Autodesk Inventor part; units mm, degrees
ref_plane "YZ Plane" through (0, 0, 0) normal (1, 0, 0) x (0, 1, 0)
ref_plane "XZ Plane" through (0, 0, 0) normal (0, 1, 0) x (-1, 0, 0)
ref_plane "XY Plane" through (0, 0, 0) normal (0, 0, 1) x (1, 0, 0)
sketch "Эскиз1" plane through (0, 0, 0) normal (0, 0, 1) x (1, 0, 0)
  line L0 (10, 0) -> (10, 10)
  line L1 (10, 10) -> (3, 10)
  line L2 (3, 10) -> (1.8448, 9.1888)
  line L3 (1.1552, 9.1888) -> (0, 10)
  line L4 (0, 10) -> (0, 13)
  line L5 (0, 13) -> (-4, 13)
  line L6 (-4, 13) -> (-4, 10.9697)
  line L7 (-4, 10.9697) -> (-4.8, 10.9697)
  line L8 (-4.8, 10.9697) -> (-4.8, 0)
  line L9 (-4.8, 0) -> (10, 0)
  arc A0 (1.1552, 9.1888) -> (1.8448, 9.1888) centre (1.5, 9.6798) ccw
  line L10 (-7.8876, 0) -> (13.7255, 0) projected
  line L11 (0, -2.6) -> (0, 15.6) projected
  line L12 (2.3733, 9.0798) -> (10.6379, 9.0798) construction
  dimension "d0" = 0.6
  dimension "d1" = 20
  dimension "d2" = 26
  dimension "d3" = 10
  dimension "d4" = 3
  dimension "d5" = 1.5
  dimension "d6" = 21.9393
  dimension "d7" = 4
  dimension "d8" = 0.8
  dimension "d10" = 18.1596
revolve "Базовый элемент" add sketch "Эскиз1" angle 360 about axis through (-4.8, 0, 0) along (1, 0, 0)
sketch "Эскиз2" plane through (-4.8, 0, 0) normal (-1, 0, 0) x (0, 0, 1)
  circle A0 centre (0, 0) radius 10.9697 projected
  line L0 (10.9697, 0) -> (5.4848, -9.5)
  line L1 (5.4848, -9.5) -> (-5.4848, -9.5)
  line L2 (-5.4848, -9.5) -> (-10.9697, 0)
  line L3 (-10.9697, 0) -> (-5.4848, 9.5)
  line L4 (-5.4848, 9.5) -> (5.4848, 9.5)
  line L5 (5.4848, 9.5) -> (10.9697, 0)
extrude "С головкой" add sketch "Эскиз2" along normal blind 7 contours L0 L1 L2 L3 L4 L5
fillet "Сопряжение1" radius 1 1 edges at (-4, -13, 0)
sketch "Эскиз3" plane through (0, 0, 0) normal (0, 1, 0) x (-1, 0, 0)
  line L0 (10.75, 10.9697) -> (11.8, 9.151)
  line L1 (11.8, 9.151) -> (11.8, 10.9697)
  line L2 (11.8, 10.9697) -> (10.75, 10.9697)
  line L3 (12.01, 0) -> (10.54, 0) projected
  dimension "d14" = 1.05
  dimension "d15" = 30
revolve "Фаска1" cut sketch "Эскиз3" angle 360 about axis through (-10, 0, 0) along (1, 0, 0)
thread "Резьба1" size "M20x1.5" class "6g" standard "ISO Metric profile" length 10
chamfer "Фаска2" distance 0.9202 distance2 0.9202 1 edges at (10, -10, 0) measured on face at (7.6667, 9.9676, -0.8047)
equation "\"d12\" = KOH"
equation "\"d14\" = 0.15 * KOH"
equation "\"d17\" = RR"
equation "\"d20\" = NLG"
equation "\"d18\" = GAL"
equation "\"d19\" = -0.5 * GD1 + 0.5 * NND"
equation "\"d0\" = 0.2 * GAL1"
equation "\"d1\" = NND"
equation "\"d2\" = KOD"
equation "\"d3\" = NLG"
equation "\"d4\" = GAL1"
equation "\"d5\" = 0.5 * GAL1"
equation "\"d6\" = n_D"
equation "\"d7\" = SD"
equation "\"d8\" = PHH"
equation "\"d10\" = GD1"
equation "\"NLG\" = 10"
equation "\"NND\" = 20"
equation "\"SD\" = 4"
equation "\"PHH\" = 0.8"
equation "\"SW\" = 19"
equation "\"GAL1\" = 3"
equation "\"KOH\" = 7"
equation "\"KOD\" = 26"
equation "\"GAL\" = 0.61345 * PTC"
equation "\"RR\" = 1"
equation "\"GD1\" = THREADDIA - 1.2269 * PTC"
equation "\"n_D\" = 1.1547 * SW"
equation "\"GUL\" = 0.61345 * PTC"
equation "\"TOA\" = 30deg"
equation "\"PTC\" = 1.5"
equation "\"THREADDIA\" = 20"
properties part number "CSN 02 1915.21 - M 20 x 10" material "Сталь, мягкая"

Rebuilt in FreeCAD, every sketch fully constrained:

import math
import FreeCAD as App
import Part
import Sketcher
Q = App.Units.Quantity


def edges_at(feature, points):
    """Names of the edges that pass closest to the given points."""
    edges = feature.Shape.Edges
    near = lambda p: min(range(len(edges)), key=lambda i: edges[i].distToShape(Part.Vertex(*p))[0])
    return sorted({f"Edge{near(p) + 1}" for p in points})

doc = App.newDocument("Part")
body = doc.addObject("PartDesign::Body", "Body")

# Sketch on XY plane
sketch1 = body.newObject("Sketcher::SketchObject", "Sketch")
sketch1.AttachmentSupport = (doc.getObject("XY_Plane"), [""])
sketch1.MapMode = "FlatFace"
sketch1.addGeometry([
    Part.LineSegment(App.Vector(10, 0, 0), App.Vector(10, 10, 0)),  # 0
    Part.LineSegment(App.Vector(10, 10, 0), App.Vector(3, 10, 0)),  # 1
    Part.LineSegment(App.Vector(3, 10, 0), App.Vector(1.8448, 9.1888, 0)),  # 2
    Part.ArcOfCircle(Part.Circle(App.Vector(1.5, 9.6798, 0), App.Vector(0, 0, 1), 0.599973), math.radians(-125.078078), math.radians(-54.921922)),  # 3
    Part.LineSegment(App.Vector(1.1552, 9.1888, 0), App.Vector(0, 10, 0)),  # 4
    Part.LineSegment(App.Vector(0, 10, 0), App.Vector(0, 13, 0)),  # 5
    Part.LineSegment(App.Vector(0, 13, 0), App.Vector(-4, 13, 0)),  # 6
    Part.LineSegment(App.Vector(-4, 13, 0), App.Vector(-4, 10.9697, 0)),  # 7
    Part.LineSegment(App.Vector(-4, 10.9697, 0), App.Vector(-4.8, 10.9697, 0)),  # 8
    Part.LineSegment(App.Vector(-4.8, 10.9697, 0), App.Vector(-4.8, 0, 0)),  # 9
    Part.LineSegment(App.Vector(-4.8, 0, 0), App.Vector(10, 0, 0)),  # 10
], False)
sketch1.addConstraint([
    Sketcher.Constraint("Coincident", 0, 2, 1, 1),
    Sketcher.Constraint("Coincident", 1, 2, 2, 1),
    Sketcher.Constraint("Tangent", 2, 2, 3, 2),
    Sketcher.Constraint("Tangent", 3, 1, 4, 1),
    Sketcher.Constraint("Coincident", 4, 2, 5, 1),
    Sketcher.Constraint("Coincident", 5, 2, 6, 1),
    Sketcher.Constraint("Coincident", 6, 2, 7, 1),
    Sketcher.Constraint("Coincident", 7, 2, 8, 1),
    Sketcher.Constraint("Coincident", 8, 2, 9, 1),
    Sketcher.Constraint("Coincident", 9, 2, 10, 1),
    Sketcher.Constraint("Coincident", 10, 2, 0, 1),
    Sketcher.Constraint("Vertical", 0),
    Sketcher.Constraint("Horizontal", 1),
    Sketcher.Constraint("Vertical", 5),
    Sketcher.Constraint("Horizontal", 6),
    Sketcher.Constraint("Vertical", 7),
    Sketcher.Constraint("Horizontal", 8),
    Sketcher.Constraint("Vertical", 9),
    Sketcher.Constraint("Horizontal", 10),
    Sketcher.Constraint("PointOnObject", 4, 2, -2),
    Sketcher.Constraint("PointOnObject", 9, 2, -1),
    Sketcher.Constraint("Horizontal", 2, 2, 3, 1),
    Sketcher.Constraint("Horizontal", 1, 2, 4, 2),
    Sketcher.Constraint("Radius", 3, Q("0.6 mm")),
    Sketcher.Constraint("DistanceX", 6, 2, 6, 1, Q("4 mm")),
    Sketcher.Constraint("DistanceY", 0, 1, 0, 2, Q("10 mm")),
    Sketcher.Constraint("DistanceY", 5, 1, 5, 2, Q("3 mm")),
    Sketcher.Constraint("DistanceX", 8, 2, 8, 1, Q("0.8 mm")),
    Sketcher.Constraint("DistanceX", -1, 1, 0, 2, Q("10 mm")),
    Sketcher.Constraint("DistanceX", -1, 1, 1, 2, Q("3 mm")),
    Sketcher.Constraint("DistanceY", 3, 3, 7, 2, Q("1.29 mm")),
    Sketcher.Constraint("DistanceY", 7, 2, 7, 1, Q("2.0303 mm")),
])
revolution = body.newObject("PartDesign::Revolution", "Revolution")
revolution.Profile = sketch1
revolution.ReferenceAxis = (sketch1, ["H_Axis"])
revolution.Angle = 360

# Sketch on YZ plane
sketch2 = body.newObject("Sketcher::SketchObject", "Sketch001")
sketch2.AttachmentSupport = (doc.getObject("YZ_Plane"), [""])
sketch2.MapMode = "FlatFace"
sketch2.AttachmentOffset = App.Placement(App.Vector(0, 0, -4.8), App.Rotation())
sketch2.addGeometry([
    Part.LineSegment(App.Vector(-9.5, 5.4848, 0), App.Vector(0, 10.9697, 0)),  # 0
    Part.LineSegment(App.Vector(0, 10.9697, 0), App.Vector(9.5, 5.4848, 0)),  # 1
    Part.LineSegment(App.Vector(9.5, 5.4848, 0), App.Vector(9.5, -5.4848, 0)),  # 2
    Part.LineSegment(App.Vector(9.5, -5.4848, 0), App.Vector(0, -10.9697, 0)),  # 3
    Part.LineSegment(App.Vector(0, -10.9697, 0), App.Vector(-9.5, -5.4848, 0)),  # 4
    Part.LineSegment(App.Vector(-9.5, -5.4848, 0), App.Vector(-9.5, 5.4848, 0)),  # 5
], False)
sketch2.addConstraint([
    Sketcher.Constraint("Coincident", 0, 2, 1, 1),
    Sketcher.Constraint("Coincident", 1, 2, 2, 1),
    Sketcher.Constraint("Coincident", 2, 2, 3, 1),
    Sketcher.Constraint("Coincident", 3, 2, 4, 1),
    Sketcher.Constraint("Coincident", 4, 2, 5, 1),
    Sketcher.Constraint("Coincident", 5, 2, 0, 1),
    Sketcher.Constraint("Vertical", 2),
    Sketcher.Constraint("Vertical", 5),
    Sketcher.Constraint("Symmetric", 0, 2, 3, 2, -1, 1),
    Sketcher.Constraint("Symmetric", 1, 2, 4, 2, -1, 1),
    Sketcher.Constraint("PointOnObject", 0, 2, -2),
    Sketcher.Constraint("Parallel", 0, 3),
    Sketcher.Constraint("Horizontal", 2, 2, 4, 2),
    Sketcher.Constraint("Angle", 0, Q("30.0003 deg")),
    Sketcher.Constraint("DistanceX", 4, 2, 2, 2, Q("19 mm")),
    Sketcher.Constraint("DistanceY", 2, 2, 2, 1, Q("10.9696 mm")),
])
pad1 = body.newObject("PartDesign::Pad", "Pad")
pad1.Profile = sketch2
pad1.Length = 7
pad1.Reversed = True
doc.recompute()

fillet = body.newObject("PartDesign::Fillet", "Fillet")
fillet.Base = (pad1, edges_at(pad1, [(-4, -13, 0)]))
fillet.Radius = 1

# Sketch on XZ plane
sketch3 = body.newObject("Sketcher::SketchObject", "Sketch002")
sketch3.AttachmentSupport = (doc.getObject("XZ_Plane"), [""])
sketch3.MapMode = "FlatFace"
sketch3.addGeometry([
    Part.LineSegment(App.Vector(-11.8, 10.9697, 0), App.Vector(-10.75, 10.9697, 0)),
    Part.LineSegment(App.Vector(-10.75, 10.9697, 0), App.Vector(-11.8, 9.151, 0)),
    Part.LineSegment(App.Vector(-11.8, 9.151, 0), App.Vector(-11.8, 10.9697, 0)),
], False)
sketch3.addConstraint([
    Sketcher.Constraint("Coincident", 0, 2, 1, 1),
    Sketcher.Constraint("Coincident", 1, 2, 2, 1),
    Sketcher.Constraint("Coincident", 2, 2, 0, 1),
    Sketcher.Constraint("Horizontal", 0),
    Sketcher.Constraint("Vertical", 2),
    Sketcher.Constraint("DistanceX", 0, 1, 0, 2, Q("1.05 mm")),
    Sketcher.Constraint("Angle", 1, Q("-119.9994 deg")),
    Sketcher.Constraint("DistanceX", 1, 2, -1, 1, Q("11.8 mm")),
    Sketcher.Constraint("DistanceY", -1, 1, 1, 2, Q("9.151 mm")),
])
groove = body.newObject("PartDesign::Groove", "Groove")
groove.Profile = sketch3
groove.ReferenceAxis = (sketch3, ["H_Axis"])
groove.Angle = 360
doc.recompute()

chamfer = body.newObject("PartDesign::Chamfer", "Chamfer")
chamfer.Base = (groove, edges_at(groove, [(10, -10, 0)]))
chamfer.ChamferType = "Two distances"
chamfer.Size = 0.9202
chamfer.Size2 = 0.9202

doc.recompute()
